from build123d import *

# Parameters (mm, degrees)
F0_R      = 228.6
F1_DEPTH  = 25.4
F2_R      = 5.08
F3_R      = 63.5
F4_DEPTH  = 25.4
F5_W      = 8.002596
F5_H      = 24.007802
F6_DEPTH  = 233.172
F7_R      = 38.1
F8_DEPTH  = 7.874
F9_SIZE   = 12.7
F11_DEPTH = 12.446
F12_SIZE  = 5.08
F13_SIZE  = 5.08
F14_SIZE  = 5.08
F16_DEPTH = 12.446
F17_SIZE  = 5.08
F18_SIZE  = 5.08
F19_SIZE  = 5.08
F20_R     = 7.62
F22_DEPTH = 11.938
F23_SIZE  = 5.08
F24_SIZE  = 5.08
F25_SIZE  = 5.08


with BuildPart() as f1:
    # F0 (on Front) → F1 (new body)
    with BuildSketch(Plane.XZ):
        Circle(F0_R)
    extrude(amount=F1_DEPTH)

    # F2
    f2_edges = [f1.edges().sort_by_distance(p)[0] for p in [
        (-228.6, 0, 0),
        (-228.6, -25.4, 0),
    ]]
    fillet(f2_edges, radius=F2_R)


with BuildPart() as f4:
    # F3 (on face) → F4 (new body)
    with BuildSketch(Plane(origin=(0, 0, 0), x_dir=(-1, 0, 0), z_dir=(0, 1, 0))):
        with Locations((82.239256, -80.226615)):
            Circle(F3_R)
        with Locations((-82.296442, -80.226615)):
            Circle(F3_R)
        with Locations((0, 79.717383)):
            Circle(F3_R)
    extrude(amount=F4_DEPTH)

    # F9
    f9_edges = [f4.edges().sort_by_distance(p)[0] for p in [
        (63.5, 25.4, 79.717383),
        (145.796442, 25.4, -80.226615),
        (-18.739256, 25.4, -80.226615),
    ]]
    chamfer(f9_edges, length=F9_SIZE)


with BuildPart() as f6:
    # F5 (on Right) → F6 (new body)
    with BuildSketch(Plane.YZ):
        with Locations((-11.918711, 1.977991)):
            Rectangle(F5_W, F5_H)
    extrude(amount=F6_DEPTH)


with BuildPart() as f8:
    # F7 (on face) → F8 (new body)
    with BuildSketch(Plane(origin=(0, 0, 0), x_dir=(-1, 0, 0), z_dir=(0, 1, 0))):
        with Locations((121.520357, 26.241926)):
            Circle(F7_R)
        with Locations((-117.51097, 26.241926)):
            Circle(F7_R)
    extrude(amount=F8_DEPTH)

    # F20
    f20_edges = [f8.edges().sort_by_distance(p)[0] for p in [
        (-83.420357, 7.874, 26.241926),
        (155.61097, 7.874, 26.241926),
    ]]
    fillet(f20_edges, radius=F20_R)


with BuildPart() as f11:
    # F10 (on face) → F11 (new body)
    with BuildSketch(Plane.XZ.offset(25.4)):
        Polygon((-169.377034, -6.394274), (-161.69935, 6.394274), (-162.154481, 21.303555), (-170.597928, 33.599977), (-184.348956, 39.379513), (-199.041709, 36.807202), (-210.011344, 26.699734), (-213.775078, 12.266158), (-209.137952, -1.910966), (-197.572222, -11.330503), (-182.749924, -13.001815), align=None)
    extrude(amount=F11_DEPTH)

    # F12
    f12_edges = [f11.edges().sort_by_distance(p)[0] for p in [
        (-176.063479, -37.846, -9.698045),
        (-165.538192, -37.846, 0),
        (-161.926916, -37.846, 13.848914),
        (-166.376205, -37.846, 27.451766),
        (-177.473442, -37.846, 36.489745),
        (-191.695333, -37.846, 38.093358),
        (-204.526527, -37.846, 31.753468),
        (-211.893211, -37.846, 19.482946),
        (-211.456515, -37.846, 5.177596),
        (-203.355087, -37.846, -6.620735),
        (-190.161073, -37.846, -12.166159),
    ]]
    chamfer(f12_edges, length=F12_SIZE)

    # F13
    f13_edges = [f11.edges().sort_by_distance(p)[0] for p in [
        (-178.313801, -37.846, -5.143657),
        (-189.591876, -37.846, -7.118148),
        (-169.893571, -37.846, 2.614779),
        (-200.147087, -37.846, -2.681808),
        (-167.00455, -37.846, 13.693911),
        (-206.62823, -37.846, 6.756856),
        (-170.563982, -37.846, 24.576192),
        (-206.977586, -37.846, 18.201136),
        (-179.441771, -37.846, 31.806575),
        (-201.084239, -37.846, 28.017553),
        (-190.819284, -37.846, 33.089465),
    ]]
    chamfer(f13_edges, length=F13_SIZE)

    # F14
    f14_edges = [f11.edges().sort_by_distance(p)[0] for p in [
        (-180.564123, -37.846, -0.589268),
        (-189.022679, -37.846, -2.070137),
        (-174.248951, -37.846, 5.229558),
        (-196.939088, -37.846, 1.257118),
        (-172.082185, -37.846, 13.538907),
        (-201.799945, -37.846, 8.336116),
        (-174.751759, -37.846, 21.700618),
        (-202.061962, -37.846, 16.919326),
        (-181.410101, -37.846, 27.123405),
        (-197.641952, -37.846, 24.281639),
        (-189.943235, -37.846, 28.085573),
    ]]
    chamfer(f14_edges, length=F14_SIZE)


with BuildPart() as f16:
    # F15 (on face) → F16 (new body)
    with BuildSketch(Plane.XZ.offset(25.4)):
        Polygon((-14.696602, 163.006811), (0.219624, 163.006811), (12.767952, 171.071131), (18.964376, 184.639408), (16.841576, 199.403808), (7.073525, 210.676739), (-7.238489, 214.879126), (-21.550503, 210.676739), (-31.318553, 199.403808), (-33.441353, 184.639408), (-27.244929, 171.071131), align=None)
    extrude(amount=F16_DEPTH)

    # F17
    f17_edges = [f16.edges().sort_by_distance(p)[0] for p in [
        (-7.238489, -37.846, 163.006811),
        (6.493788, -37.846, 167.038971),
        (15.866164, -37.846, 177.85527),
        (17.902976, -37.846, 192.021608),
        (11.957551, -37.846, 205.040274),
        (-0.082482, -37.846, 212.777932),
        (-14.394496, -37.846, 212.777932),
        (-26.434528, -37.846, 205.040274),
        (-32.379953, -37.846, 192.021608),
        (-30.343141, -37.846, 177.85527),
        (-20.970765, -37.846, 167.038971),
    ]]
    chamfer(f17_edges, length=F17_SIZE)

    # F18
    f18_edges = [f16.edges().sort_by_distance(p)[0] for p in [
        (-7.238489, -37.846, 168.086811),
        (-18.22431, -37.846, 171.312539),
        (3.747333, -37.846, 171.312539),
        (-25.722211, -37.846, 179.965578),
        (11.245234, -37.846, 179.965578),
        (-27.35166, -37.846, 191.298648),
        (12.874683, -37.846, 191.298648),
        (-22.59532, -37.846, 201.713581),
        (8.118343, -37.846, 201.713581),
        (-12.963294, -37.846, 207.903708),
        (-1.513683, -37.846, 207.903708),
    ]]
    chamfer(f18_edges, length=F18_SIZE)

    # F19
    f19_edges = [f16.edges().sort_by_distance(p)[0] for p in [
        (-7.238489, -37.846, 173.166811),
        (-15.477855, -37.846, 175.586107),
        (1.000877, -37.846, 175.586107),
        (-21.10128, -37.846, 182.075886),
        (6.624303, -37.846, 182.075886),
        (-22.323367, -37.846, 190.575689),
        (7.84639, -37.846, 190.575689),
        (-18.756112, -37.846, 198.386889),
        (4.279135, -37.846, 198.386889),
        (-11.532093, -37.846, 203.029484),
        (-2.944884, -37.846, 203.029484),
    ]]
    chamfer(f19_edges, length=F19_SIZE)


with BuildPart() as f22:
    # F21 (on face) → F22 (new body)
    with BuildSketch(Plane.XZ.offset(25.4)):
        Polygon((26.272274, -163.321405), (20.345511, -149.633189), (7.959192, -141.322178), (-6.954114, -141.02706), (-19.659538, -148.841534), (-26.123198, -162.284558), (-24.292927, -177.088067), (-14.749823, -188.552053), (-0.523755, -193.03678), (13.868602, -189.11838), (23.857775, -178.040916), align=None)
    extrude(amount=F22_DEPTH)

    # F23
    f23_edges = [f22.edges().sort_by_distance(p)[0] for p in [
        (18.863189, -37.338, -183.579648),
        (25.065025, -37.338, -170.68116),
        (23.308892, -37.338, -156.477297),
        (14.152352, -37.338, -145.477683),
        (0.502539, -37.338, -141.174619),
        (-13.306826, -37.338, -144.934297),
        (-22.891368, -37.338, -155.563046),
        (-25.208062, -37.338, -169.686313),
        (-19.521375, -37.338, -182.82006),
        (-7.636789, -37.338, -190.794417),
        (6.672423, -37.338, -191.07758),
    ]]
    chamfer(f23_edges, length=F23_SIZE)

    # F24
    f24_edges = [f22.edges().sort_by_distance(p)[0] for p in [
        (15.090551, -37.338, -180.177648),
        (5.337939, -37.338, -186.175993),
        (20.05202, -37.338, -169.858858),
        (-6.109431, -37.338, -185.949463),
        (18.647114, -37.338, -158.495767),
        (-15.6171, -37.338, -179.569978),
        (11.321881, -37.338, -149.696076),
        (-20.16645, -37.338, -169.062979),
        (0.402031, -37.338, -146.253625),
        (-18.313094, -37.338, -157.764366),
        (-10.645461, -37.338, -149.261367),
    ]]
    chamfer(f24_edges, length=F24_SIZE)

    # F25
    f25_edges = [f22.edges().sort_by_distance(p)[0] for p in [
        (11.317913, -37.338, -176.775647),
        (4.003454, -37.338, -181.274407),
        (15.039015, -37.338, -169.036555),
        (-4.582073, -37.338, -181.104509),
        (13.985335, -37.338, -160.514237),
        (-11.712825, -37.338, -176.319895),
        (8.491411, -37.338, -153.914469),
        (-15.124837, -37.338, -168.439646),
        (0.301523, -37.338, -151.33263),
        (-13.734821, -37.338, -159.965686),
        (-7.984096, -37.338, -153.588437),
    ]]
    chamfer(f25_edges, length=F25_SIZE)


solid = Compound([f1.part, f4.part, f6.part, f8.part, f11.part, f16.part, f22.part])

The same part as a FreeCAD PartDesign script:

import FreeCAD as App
import Part
import Sketcher
from FreeCAD import Vector
Q = App.Units.Quantity


def edges_at(feature, points):
    """Names of the edges that pass closest to the given points."""
    edges = feature.Shape.Edges
    near = lambda p: min(range(len(edges)), key=lambda i: edges[i].distToShape(Part.Vertex(*p))[0])
    return sorted({f"Edge{near(p) + 1}" for p in points})

doc = App.newDocument("Part")
body = doc.addObject("PartDesign::Body", "Body")

sketch1 = doc.addObject("Sketcher::SketchObject", "Sketch")
body.addObject(sketch1)
sketch1.AttachmentSupport = (doc.XZ_Plane, [""])
sketch1.MapMode = "FlatFace"
sketch1.addGeometry(Part.Circle(Vector(0, 0, 0), Vector(0, 0, 1), 229), False)
sketch1.addConstraint(Sketcher.Constraint("Coincident", 0, 3, -1, 1))
sketch1.addConstraint(Sketcher.Constraint("Diameter", 0, Q("18 in")))
pad1 = doc.addObject("PartDesign::Pad", "Pad")
body.addObject(pad1)
pad1.Profile = sketch1
pad1.Length = Q("1 in")
doc.recompute()

fillet = doc.addObject("PartDesign::Fillet", "Fillet")
body.addObject(fillet)
fillet.Base = (pad1, edges_at(pad1, [(-228.6, 0, 0), (-228.6, -25.4, 0)]))
fillet.Radius = Q("0.2 in")
body2 = doc.addObject("PartDesign::Body", "Body001")
body2.AllowCompound = True

sketch2 = doc.addObject("Sketcher::SketchObject", "Sketch001")
body2.addObject(sketch2)
sketch2.AttachmentSupport = (doc.getObject("XZ_Plane001"), [""])
sketch2.MapMode = "FlatFace"
sketch2.addGeometry(Part.Circle(Vector(-82, -80, 0), Vector(0, 0, 1), 64), False)
sketch2.addGeometry(Part.Circle(Vector(82, -80, 0), Vector(0, 0, 1), 64), False)
sketch2.addGeometry(Part.Circle(Vector(0, 80, 0), Vector(0, 0, 1), 64), False)
sketch2.addConstraint(Sketcher.Constraint("Equal", 0, 1))
sketch2.addConstraint(Sketcher.Constraint("Equal", 1, 2))
sketch2.addConstraint(Sketcher.Constraint("PointOnObject", 2, 3, -2))
sketch2.addConstraint(Sketcher.Constraint("Horizontal", 0, 3, 1, 3))
sketch2.addConstraint(Sketcher.Constraint("Diameter", 0, Q("5 in")))
sketch2.addConstraint(Sketcher.Constraint("DistanceX", 0, 3, 1, 3, Q("164.535698 mm")))
sketch2.addConstraint(Sketcher.Constraint("DistanceY", 0, 3, 2, 3, Q("159.943998 mm")))
sketch2.addConstraint(Sketcher.Constraint("DistanceX", -1, 1, 1, 3, Q("82.296442 mm")))
sketch2.addConstraint(Sketcher.Constraint("DistanceY", 0, 3, -1, 1, Q("80.226615 mm")))
pad2 = doc.addObject("PartDesign::Pad", "Pad001")
body2.addObject(pad2)
pad2.Profile = sketch2
pad2.Length = Q("1 in")
pad2.Reversed = True
doc.recompute()

chamfer = doc.addObject("PartDesign::Chamfer", "Chamfer")
body2.addObject(chamfer)
chamfer.Base = (pad2, edges_at(pad2, [(63.5, 25.4, 79.717), (145.796, 25.4, -80.227), (-18.739, 25.4, -80.227)]))
chamfer.Size = Q("0.5 in")
body3 = doc.addObject("PartDesign::Body", "Body002")

sketch3 = doc.addObject("Sketcher::SketchObject", "Sketch002")
body3.addObject(sketch3)
sketch3.AttachmentSupport = (doc.getObject("YZ_Plane002"), [""])
sketch3.MapMode = "FlatFace"
sketch3.addGeometry(Part.LineSegment(Vector(-16, 14, 0), Vector(-16, -10, 0)), False)
sketch3.addGeometry(Part.LineSegment(Vector(-16, -10, 0), Vector(-8, -10, 0)), False)
sketch3.addGeometry(Part.LineSegment(Vector(-8, -10, 0), Vector(-8, 14, 0)), False)
sketch3.addGeometry(Part.LineSegment(Vector(-8, 14, 0), Vector(-16, 14, 0)), False)
sketch3.addConstraint(Sketcher.Constraint("Coincident", 0, 2, 1, 1))
sketch3.addConstraint(Sketcher.Constraint("Coincident", 1, 2, 2, 1))
sketch3.addConstraint(Sketcher.Constraint("Coincident", 2, 2, 3, 1))
sketch3.addConstraint(Sketcher.Constraint("Coincident", 3, 2, 0, 1))
sketch3.addConstraint(Sketcher.Constraint("Vertical", 0))
sketch3.addConstraint(Sketcher.Constraint("Horizontal", 1))
sketch3.addConstraint(Sketcher.Constraint("Vertical", 2))
sketch3.addConstraint(Sketcher.Constraint("Horizontal", 3))
sketch3.addConstraint(Sketcher.Constraint("DistanceY", 0, 2, 0, 1, Q("24.007802 mm")))
sketch3.addConstraint(Sketcher.Constraint("DistanceX", 1, 1, 1, 2, Q("8.002596 mm")))
sketch3.addConstraint(Sketcher.Constraint("DistanceX", 0, 2, -1, 1, Q("15.920009 mm")))
sketch3.addConstraint(Sketcher.Constraint("DistanceY", 0, 2, -1, 1, Q("10.02591 mm")))
pad3 = doc.addObject("PartDesign::Pad", "Pad002")
body3.addObject(pad3)
pad3.Profile = sketch3
pad3.Length = Q("9.18 in")
body4 = doc.addObject("PartDesign::Body", "Body003")
body4.AllowCompound = True

sketch4 = doc.addObject("Sketcher::SketchObject", "Sketch003")
body4.addObject(sketch4)
sketch4.AttachmentSupport = (doc.getObject("XZ_Plane003"), [""])
sketch4.MapMode = "FlatFace"
sketch4.addGeometry(Part.Circle(Vector(-122, 26, 0), Vector(0, 0, 1), 38), False)
sketch4.addGeometry(Part.Circle(Vector(118, 26, 0), Vector(0, 0, 1), 38), False)
sketch4.addConstraint(Sketcher.Constraint("Equal", 0, 1))
sketch4.addConstraint(Sketcher.Constraint("Horizontal", 0, 3, 1, 3))
sketch4.addConstraint(Sketcher.Constraint("Diameter", 0, Q("3 in")))
sketch4.addConstraint(Sketcher.Constraint("DistanceX", -1, 1, 1, 3, Q("117.51097 mm")))
sketch4.addConstraint(Sketcher.Constraint("DistanceX", 0, 3, -1, 1, Q("121.520357 mm")))
sketch4.addConstraint(Sketcher.Constraint("DistanceY", -1, 1, 0, 3, Q("26.241926 mm")))
pad4 = doc.addObject("PartDesign::Pad", "Pad003")
body4.addObject(pad4)
pad4.Profile = sketch4
pad4.Length = Q("0.31 in")
pad4.Reversed = True
doc.recompute()

fillet2 = doc.addObject("PartDesign::Fillet", "Fillet001")
body4.addObject(fillet2)
fillet2.Base = (pad4, edges_at(pad4, [(-83.42, 7.874, 26.242), (155.611, 7.874, 26.242)]))
fillet2.Radius = Q("0.3 in")
body5 = doc.addObject("PartDesign::Body", "Body004")

sketch5 = doc.addObject("Sketcher::SketchObject", "Sketch004")
body5.addObject(sketch5)
sketch5.AttachmentSupport = (doc.getObject("XZ_Plane004"), [""])
sketch5.MapMode = "FlatFace"
sketch5.AttachmentOffset = App.Placement(Vector(0, 0, 1 * 25.4), App.Rotation())
sketch5.addGeometry(Part.LineSegment(Vector(-169, -6, 0), Vector(-162, 6, 0)), False)
sketch5.addGeometry(Part.LineSegment(Vector(-162, 6, 0), Vector(-162, 21, 0)), False)
sketch5.addGeometry(Part.LineSegment(Vector(-162, 21, 0), Vector(-171, 34, 0)), False)
sketch5.addGeometry(Part.LineSegment(Vector(-171, 34, 0), Vector(-184, 39, 0)), False)
sketch5.addGeometry(Part.LineSegment(Vector(-184, 39, 0), Vector(-199, 37, 0)), False)
sketch5.addGeometry(Part.LineSegment(Vector(-199, 37, 0), Vector(-210, 27, 0)), False)
sketch5.addGeometry(Part.LineSegment(Vector(-210, 27, 0), Vector(-214, 12, 0)), False)
sketch5.addGeometry(Part.LineSegment(Vector(-214, 12, 0), Vector(-209, -2, 0)), False)
sketch5.addGeometry(Part.LineSegment(Vector(-209, -2, 0), Vector(-198, -11, 0)), False)
sketch5.addGeometry(Part.LineSegment(Vector(-198, -11, 0), Vector(-183, -13, 0)), False)
sketch5.addGeometry(Part.LineSegment(Vector(-183, -13, 0), Vector(-169, -6, 0)), False)
sketch5.addConstraint(Sketcher.Constraint("Coincident", 0, 2, 1, 1))
sketch5.addConstraint(Sketcher.Constraint("Coincident", 1, 2, 2, 1))
sketch5.addConstraint(Sketcher.Constraint("Coincident", 2, 2, 3, 1))
sketch5.addConstraint(Sketcher.Constraint("Coincident", 3, 2, 4, 1))
sketch5.addConstraint(Sketcher.Constraint("Coincident", 4, 2, 5, 1))
sketch5.addConstraint(Sketcher.Constraint("Coincident", 5, 2, 6, 1))
sketch5.addConstraint(Sketcher.Constraint("Coincident", 6, 2, 7, 1))
sketch5.addConstraint(Sketcher.Constraint("Coincident", 7, 2, 8, 1))
sketch5.addConstraint(Sketcher.Constraint("Coincident", 8, 2, 9, 1))
sketch5.addConstraint(Sketcher.Constraint("Coincident", 9, 2, 10, 1))
sketch5.addConstraint(Sketcher.Constraint("Coincident", 10, 2, 0, 1))
sketch5.addConstraint(Sketcher.Constraint("Equal", 0, 1))
sketch5.addConstraint(Sketcher.Constraint("Equal", 1, 2))
sketch5.addConstraint(Sketcher.Constraint("Equal", 2, 3))
sketch5.addConstraint(Sketcher.Constraint("Equal", 3, 4))
sketch5.addConstraint(Sketcher.Constraint("Equal", 4, 5))
sketch5.addConstraint(Sketcher.Constraint("Equal", 5, 6))
sketch5.addConstraint(Sketcher.Constraint("Equal", 6, 7))
sketch5.addConstraint(Sketcher.Constraint("Equal", 7, 8))
sketch5.addConstraint(Sketcher.Constraint("Equal", 8, 9))
sketch5.addConstraint(Sketcher.Constraint("Equal", 9, 10))
sketch5.addConstraint(Sketcher.Constraint("DistanceY", -1, 1, 4, 2, Q("36.807202 mm")))
sketch5.addConstraint(Sketcher.Constraint("DistanceY", 7, 2, 5, 2, Q("28.6107 mm")))
sketch5.addConstraint(Sketcher.Constraint("DistanceX", 8, 2, 9, 2, Q("14.822298 mm")))
sketch5.addConstraint(Sketcher.Constraint("DistanceX", 0, 2, -1, 1, Q("161.69935 mm")))
sketch5.addConstraint(Sketcher.Constraint("DistanceX", 1, 2, -1, 1, Q("162.154481 mm")))
sketch5.addConstraint(Sketcher.Constraint("DistanceX", 2, 2, -1, 1, Q("170.597928 mm")))
sketch5.addConstraint(Sketcher.Constraint("DistanceX", 4, 2, -1, 1, Q("199.041709 mm")))
sketch5.addConstraint(Sketcher.Constraint("DistanceX", 6, 2, -1, 1, Q("213.775078 mm")))
sketch5.addConstraint(Sketcher.Constraint("DistanceY", -1, 1, 6, 2, Q("12.266158 mm")))
sketch5.addConstraint(Sketcher.Constraint("DistanceY", 0, 2, 1, 2, Q("14.909281 mm")))
sketch5.addConstraint(Sketcher.Constraint("DistanceY", 1, 2, 3, 2, Q("18.075958 mm")))
sketch5.addConstraint(Sketcher.Constraint("DistanceX", 7, 2, 8, 2, Q("11.56573 mm")))
pad5 = doc.addObject("PartDesign::Pad", "Pad004")
body5.addObject(pad5)
pad5.Profile = sketch5
pad5.Length = Q("0.49 in")
doc.recompute()

chamfer2 = doc.addObject("PartDesign::Chamfer", "Chamfer001")
body5.addObject(chamfer2)
chamfer2.Base = (pad5, edges_at(pad5, [
    (-176.063, -37.846, -9.698),
    (-165.538, -37.846, 0),
    (-161.927, -37.846, 13.849),
    (-166.376, -37.846, 27.452),
    (-177.473, -37.846, 36.49),
    (-191.695, -37.846, 38.093),
    (-204.527, -37.846, 31.753),
    (-211.893, -37.846, 19.483),
    (-211.457, -37.846, 5.178),
    (-203.355, -37.846, -6.621),
    (-190.161, -37.846, -12.166),
]))
chamfer2.Size = Q("0.2 in")
doc.recompute()

chamfer3 = doc.addObject("PartDesign::Chamfer", "Chamfer002")
body5.addObject(chamfer3)
chamfer3.Base = (chamfer2, edges_at(chamfer2, [
    (-178.314, -37.846, -5.144),
    (-189.592, -37.846, -7.118),
    (-169.894, -37.846, 2.615),
    (-200.147, -37.846, -2.682),
    (-167.005, -37.846, 13.694),
    (-206.628, -37.846, 6.757),
    (-170.564, -37.846, 24.576),
    (-206.978, -37.846, 18.201),
    (-179.442, -37.846, 31.807),
    (-201.084, -37.846, 28.018),
    (-190.819, -37.846, 33.089),
]))
chamfer3.Size = Q("0.2 in")
doc.recompute()

chamfer4 = doc.addObject("PartDesign::Chamfer", "Chamfer003")
body5.addObject(chamfer4)
chamfer4.Base = (chamfer3, edges_at(chamfer3, [
    (-180.564, -37.846, -0.589),
    (-189.023, -37.846, -2.07),
    (-174.249, -37.846, 5.23),
    (-196.939, -37.846, 1.257),
    (-172.082, -37.846, 13.539),
    (-201.8, -37.846, 8.336),
    (-174.752, -37.846, 21.701),
    (-202.062, -37.846, 16.919),
    (-181.41, -37.846, 27.123),
    (-197.642, -37.846, 24.282),
    (-189.943, -37.846, 28.086),
]))
chamfer4.Size = Q("0.2 in")
body6 = doc.addObject("PartDesign::Body", "Body005")

sketch6 = doc.addObject("Sketcher::SketchObject", "Sketch005")
body6.addObject(sketch6)
sketch6.AttachmentSupport = (doc.getObject("XZ_Plane005"), [""])
sketch6.MapMode = "FlatFace"
sketch6.AttachmentOffset = App.Placement(Vector(0, 0, 1 * 25.4), App.Rotation())
sketch6.addGeometry(Part.LineSegment(Vector(-15, 163, 0), Vector(0, 163, 0)), False)
sketch6.addGeometry(Part.LineSegment(Vector(0, 163, 0), Vector(13, 171, 0)), False)
sketch6.addGeometry(Part.LineSegment(Vector(13, 171, 0), Vector(19, 185, 0)), False)
sketch6.addGeometry(Part.LineSegment(Vector(19, 185, 0), Vector(17, 199, 0)), False)
sketch6.addGeometry(Part.LineSegment(Vector(17, 199, 0), Vector(7, 211, 0)), False)
sketch6.addGeometry(Part.LineSegment(Vector(7, 211, 0), Vector(-7, 215, 0)), False)
sketch6.addGeometry(Part.LineSegment(Vector(-7, 215, 0), Vector(-22, 211, 0)), False)
sketch6.addGeometry(Part.LineSegment(Vector(-22, 211, 0), Vector(-31, 199, 0)), False)
sketch6.addGeometry(Part.LineSegment(Vector(-31, 199, 0), Vector(-33, 185, 0)), False)
sketch6.addGeometry(Part.LineSegment(Vector(-33, 185, 0), Vector(-27, 171, 0)), False)
sketch6.addGeometry(Part.LineSegment(Vector(-27, 171, 0), Vector(-15, 163, 0)), False)
sketch6.addConstraint(Sketcher.Constraint("Coincident", 0, 2, 1, 1))
sketch6.addConstraint(Sketcher.Constraint("Coincident", 1, 2, 2, 1))
sketch6.addConstraint(Sketcher.Constraint("Coincident", 2, 2, 3, 1))
sketch6.addConstraint(Sketcher.Constraint("Coincident", 3, 2, 4, 1))
sketch6.addConstraint(Sketcher.Constraint("Coincident", 4, 2, 5, 1))
sketch6.addConstraint(Sketcher.Constraint("Coincident", 5, 2, 6, 1))
sketch6.addConstraint(Sketcher.Constraint("Coincident", 6, 2, 7, 1))
sketch6.addConstraint(Sketcher.Constraint("Coincident", 7, 2, 8, 1))
sketch6.addConstraint(Sketcher.Constraint("Coincident", 8, 2, 9, 1))
sketch6.addConstraint(Sketcher.Constraint("Coincident", 9, 2, 10, 1))
sketch6.addConstraint(Sketcher.Constraint("Coincident", 10, 2, 0, 1))
sketch6.addConstraint(Sketcher.Constraint("Horizontal", 0))
sketch6.addConstraint(Sketcher.Constraint("Horizontal", 4, 2, 6, 2))
sketch6.addConstraint(Sketcher.Constraint("Horizontal", 3, 2, 7, 2))
sketch6.addConstraint(Sketcher.Constraint("Horizontal", 2, 2, 8, 2))
sketch6.addConstraint(Sketcher.Constraint("Horizontal", 1, 2, 9, 2))
sketch6.addConstraint(Sketcher.Constraint("Equal", 1, 2))
sketch6.addConstraint(Sketcher.Constraint("Equal", 2, 3))
sketch6.addConstraint(Sketcher.Constraint("Equal", 3, 4))
sketch6.addConstraint(Sketcher.Constraint("Equal", 4, 5))
sketch6.addConstraint(Sketcher.Constraint("Equal", 5, 6))
sketch6.addConstraint(Sketcher.Constraint("Equal", 6, 7))
sketch6.addConstraint(Sketcher.Constraint("Equal", 7, 8))
sketch6.addConstraint(Sketcher.Constraint("Equal", 8, 9))
sketch6.addConstraint(Sketcher.Constraint("Equal", 9, 10))
sketch6.addConstraint(Sketcher.Constraint("DistanceX", 3, 2, 2, 2, Q("2.1228 mm")))
sketch6.addConstraint(Sketcher.Constraint("DistanceY", 2, 2, 3, 2, Q("14.7644 mm")))
sketch6.addConstraint(Sketcher.Constraint("DistanceX", 0, 2, 4, 2, Q("6.853901 mm")))
sketch6.addConstraint(Sketcher.Constraint("DistanceX", 0, 1, 0, 2, Q("14.916226 mm")))
sketch6.addConstraint(Sketcher.Constraint("DistanceY", -1, 1, 0, 2, Q("163.006811 mm")))
sketch6.addConstraint(Sketcher.Constraint("DistanceX", -1, 1, 1, 2, Q("12.767952 mm")))
sketch6.addConstraint(Sketcher.Constraint("DistanceY", -1, 1, 1, 2, Q("171.071131 mm")))
sketch6.addConstraint(Sketcher.Constraint("DistanceY", -1, 1, 2, 2, Q("184.639408 mm")))
pad6 = doc.addObject("PartDesign::Pad", "Pad005")
body6.addObject(pad6)
pad6.Profile = sketch6
pad6.Length = Q("0.49 in")
doc.recompute()

chamfer5 = doc.addObject("PartDesign::Chamfer", "Chamfer004")
body6.addObject(chamfer5)
chamfer5.Base = (pad6, edges_at(pad6, [
    (-7.238, -37.846, 163.007),
    (6.494, -37.846, 167.039),
    (15.866, -37.846, 177.855),
    (17.903, -37.846, 192.022),
    (11.958, -37.846, 205.04),
    (-0.082, -37.846, 212.778),
    (-14.394, -37.846, 212.778),
    (-26.435, -37.846, 205.04),
    (-32.38, -37.846, 192.022),
    (-30.343, -37.846, 177.855),
    (-20.971, -37.846, 167.039),
]))
chamfer5.Size = Q("0.2 in")
doc.recompute()

chamfer6 = doc.addObject("PartDesign::Chamfer", "Chamfer005")
body6.addObject(chamfer6)
chamfer6.Base = (chamfer5, edges_at(chamfer5, [
    (-7.238, -37.846, 168.087),
    (-18.224, -37.846, 171.313),
    (3.747, -37.846, 171.313),
    (-25.722, -37.846, 179.966),
    (11.245, -37.846, 179.966),
    (-27.352, -37.846, 191.299),
    (12.875, -37.846, 191.299),
    (-22.595, -37.846, 201.714),
    (8.118, -37.846, 201.714),
    (-12.963, -37.846, 207.904),
    (-1.514, -37.846, 207.904),
]))
chamfer6.Size = Q("0.2 in")
doc.recompute()

chamfer7 = doc.addObject("PartDesign::Chamfer", "Chamfer006")
body6.addObject(chamfer7)
chamfer7.Base = (chamfer6, edges_at(chamfer6, [
    (-7.238, -37.846, 173.167),
    (-15.478, -37.846, 175.586),
    (1.001, -37.846, 175.586),
    (-21.101, -37.846, 182.076),
    (6.624, -37.846, 182.076),
    (-22.323, -37.846, 190.576),
    (7.846, -37.846, 190.576),
    (-18.756, -37.846, 198.387),
    (4.279, -37.846, 198.387),
    (-11.532, -37.846, 203.029),
    (-2.945, -37.846, 203.029),
]))
chamfer7.Size = Q("0.2 in")
body7 = doc.addObject("PartDesign::Body", "Body006")

sketch7 = doc.addObject("Sketcher::SketchObject", "Sketch006")
body7.addObject(sketch7)
sketch7.AttachmentSupport = (doc.getObject("XZ_Plane006"), [""])
sketch7.MapMode = "FlatFace"
sketch7.AttachmentOffset = App.Placement(Vector(0, 0, 1 * 25.4), App.Rotation())
sketch7.addGeometry(Part.LineSegment(Vector(26, -163, 0), Vector(20, -150, 0)), False)
sketch7.addGeometry(Part.LineSegment(Vector(20, -150, 0), Vector(8, -141, 0)), False)
sketch7.addGeometry(Part.LineSegment(Vector(8, -141, 0), Vector(-7, -141, 0)), False)
sketch7.addGeometry(Part.LineSegment(Vector(-7, -141, 0), Vector(-20, -149, 0)), False)
sketch7.addGeometry(Part.LineSegment(Vector(-20, -149, 0), Vector(-26, -162, 0)), False)
sketch7.addGeometry(Part.LineSegment(Vector(-26, -162, 0), Vector(-24, -177, 0)), False)
sketch7.addGeometry(Part.LineSegment(Vector(-24, -177, 0), Vector(-15, -189, 0)), False)
sketch7.addGeometry(Part.LineSegment(Vector(-15, -189, 0), Vector(-1, -193, 0)), False)
sketch7.addGeometry(Part.LineSegment(Vector(-1, -193, 0), Vector(14, -189, 0)), False)
sketch7.addGeometry(Part.LineSegment(Vector(14, -189, 0), Vector(24, -178, 0)), False)
sketch7.addGeometry(Part.LineSegment(Vector(24, -178, 0), Vector(26, -163, 0)), False)
sketch7.addConstraint(Sketcher.Constraint("Coincident", 0, 2, 1, 1))
sketch7.addConstraint(Sketcher.Constraint("Coincident", 1, 2, 2, 1))
sketch7.addConstraint(Sketcher.Constraint("Coincident", 2, 2, 3, 1))
sketch7.addConstraint(Sketcher.Constraint("Coincident", 3, 2, 4, 1))
sketch7.addConstraint(Sketcher.Constraint("Coincident", 4, 2, 5, 1))
sketch7.addConstraint(Sketcher.Constraint("Coincident", 5, 2, 6, 1))
sketch7.addConstraint(Sketcher.Constraint("Coincident", 6, 2, 7, 1))
sketch7.addConstraint(Sketcher.Constraint("Coincident", 7, 2, 8, 1))
sketch7.addConstraint(Sketcher.Constraint("Coincident", 8, 2, 9, 1))
sketch7.addConstraint(Sketcher.Constraint("Coincident", 9, 2, 10, 1))
sketch7.addConstraint(Sketcher.Constraint("Coincident", 10, 2, 0, 1))
sketch7.addConstraint(Sketcher.Constraint("Equal", 0, 1))
sketch7.addConstraint(Sketcher.Constraint("Equal", 1, 2))
sketch7.addConstraint(Sketcher.Constraint("Equal", 2, 3))
sketch7.addConstraint(Sketcher.Constraint("Equal", 3, 4))
sketch7.addConstraint(Sketcher.Constraint("Equal", 4, 5))
sketch7.addConstraint(Sketcher.Constraint("Equal", 5, 6))
sketch7.addConstraint(Sketcher.Constraint("Equal", 6, 7))
sketch7.addConstraint(Sketcher.Constraint("Equal", 7, 8))
sketch7.addConstraint(Sketcher.Constraint("Equal", 8, 9))
sketch7.addConstraint(Sketcher.Constraint("Equal", 9, 10))
sketch7.addConstraint(Sketcher.Constraint("DistanceX", -1, 1, 8, 2, Q("13.868602 mm")))
sketch7.addConstraint(Sketcher.Constraint("DistanceY", 7, 2, 8, 2, Q("3.9184 mm")))
sketch7.addConstraint(Sketcher.Constraint("DistanceY", 8, 2, 1, 2, Q("47.796202 mm")))
sketch7.addConstraint(Sketcher.Constraint("DistanceX", 9, 2, 10, 2, Q("2.414499 mm")))
sketch7.addConstraint(Sketcher.Constraint("DistanceX", -1, 1, 0, 2, Q("20.345511 mm")))
sketch7.addConstraint(Sketcher.Constraint("DistanceY", 0, 2, -1, 1, Q("149.633189 mm")))
sketch7.addConstraint(Sketcher.Constraint("DistanceX", -1, 1, 1, 2, Q("7.959192 mm")))
sketch7.addConstraint(Sketcher.Constraint("DistanceY", 1, 2, -1, 1, Q("141.322178 mm")))
sketch7.addConstraint(Sketcher.Constraint("DistanceY", 2, 2, -1, 1, Q("141.02706 mm")))
sketch7.addConstraint(Sketcher.Constraint("DistanceX", 3, 2, -1, 1, Q("19.659538 mm")))
sketch7.addConstraint(Sketcher.Constraint("DistanceY", 4, 2, -1, 1, Q("162.284558 mm")))
sketch7.addConstraint(Sketcher.Constraint("DistanceX", 4, 2, 5, 2, Q("1.830271 mm")))
pad7 = doc.addObject("PartDesign::Pad", "Pad006")
body7.addObject(pad7)
pad7.Profile = sketch7
pad7.Length = Q("0.47 in")
doc.recompute()

chamfer8 = doc.addObject("PartDesign::Chamfer", "Chamfer007")
body7.addObject(chamfer8)
chamfer8.Base = (pad7, edges_at(pad7, [
    (18.863, -37.338, -183.58),
    (25.065, -37.338, -170.681),
    (23.309, -37.338, -156.477),
    (14.152, -37.338, -145.478),
    (0.503, -37.338, -141.175),
    (-13.307, -37.338, -144.934),
    (-22.891, -37.338, -155.563),
    (-25.208, -37.338, -169.686),
    (-19.521, -37.338, -182.82),
    (-7.637, -37.338, -190.794),
    (6.672, -37.338, -191.078),
]))
chamfer8.Size = Q("0.2 in")
doc.recompute()

chamfer9 = doc.addObject("PartDesign::Chamfer", "Chamfer008")
body7.addObject(chamfer9)
chamfer9.Base = (chamfer8, edges_at(chamfer8, [
    (15.091, -37.338, -180.178),
    (5.338, -37.338, -186.176),
    (20.052, -37.338, -169.859),
    (-6.109, -37.338, -185.949),
    (18.647, -37.338, -158.496),
    (-15.617, -37.338, -179.57),
    (11.322, -37.338, -149.696),
    (-20.166, -37.338, -169.063),
    (0.402, -37.338, -146.254),
    (-18.313, -37.338, -157.764),
    (-10.645, -37.338, -149.261),
]))
chamfer9.Size = Q("0.2 in")
doc.recompute()

chamfer10 = doc.addObject("PartDesign::Chamfer", "Chamfer009")
body7.addObject(chamfer10)
chamfer10.Base = (chamfer9, edges_at(chamfer9, [
    (11.318, -37.338, -176.776),
    (4.003, -37.338, -181.274),
    (15.039, -37.338, -169.037),
    (-4.582, -37.338, -181.105),
    (13.985, -37.338, -160.514),
    (-11.713, -37.338, -176.32),
    (8.491, -37.338, -153.914),
    (-15.125, -37.338, -168.44),
    (0.302, -37.338, -151.333),
    (-13.735, -37.338, -159.966),
    (-7.984, -37.338, -153.588),
]))
chamfer10.Size = Q("0.2 in")

doc.recompute()
